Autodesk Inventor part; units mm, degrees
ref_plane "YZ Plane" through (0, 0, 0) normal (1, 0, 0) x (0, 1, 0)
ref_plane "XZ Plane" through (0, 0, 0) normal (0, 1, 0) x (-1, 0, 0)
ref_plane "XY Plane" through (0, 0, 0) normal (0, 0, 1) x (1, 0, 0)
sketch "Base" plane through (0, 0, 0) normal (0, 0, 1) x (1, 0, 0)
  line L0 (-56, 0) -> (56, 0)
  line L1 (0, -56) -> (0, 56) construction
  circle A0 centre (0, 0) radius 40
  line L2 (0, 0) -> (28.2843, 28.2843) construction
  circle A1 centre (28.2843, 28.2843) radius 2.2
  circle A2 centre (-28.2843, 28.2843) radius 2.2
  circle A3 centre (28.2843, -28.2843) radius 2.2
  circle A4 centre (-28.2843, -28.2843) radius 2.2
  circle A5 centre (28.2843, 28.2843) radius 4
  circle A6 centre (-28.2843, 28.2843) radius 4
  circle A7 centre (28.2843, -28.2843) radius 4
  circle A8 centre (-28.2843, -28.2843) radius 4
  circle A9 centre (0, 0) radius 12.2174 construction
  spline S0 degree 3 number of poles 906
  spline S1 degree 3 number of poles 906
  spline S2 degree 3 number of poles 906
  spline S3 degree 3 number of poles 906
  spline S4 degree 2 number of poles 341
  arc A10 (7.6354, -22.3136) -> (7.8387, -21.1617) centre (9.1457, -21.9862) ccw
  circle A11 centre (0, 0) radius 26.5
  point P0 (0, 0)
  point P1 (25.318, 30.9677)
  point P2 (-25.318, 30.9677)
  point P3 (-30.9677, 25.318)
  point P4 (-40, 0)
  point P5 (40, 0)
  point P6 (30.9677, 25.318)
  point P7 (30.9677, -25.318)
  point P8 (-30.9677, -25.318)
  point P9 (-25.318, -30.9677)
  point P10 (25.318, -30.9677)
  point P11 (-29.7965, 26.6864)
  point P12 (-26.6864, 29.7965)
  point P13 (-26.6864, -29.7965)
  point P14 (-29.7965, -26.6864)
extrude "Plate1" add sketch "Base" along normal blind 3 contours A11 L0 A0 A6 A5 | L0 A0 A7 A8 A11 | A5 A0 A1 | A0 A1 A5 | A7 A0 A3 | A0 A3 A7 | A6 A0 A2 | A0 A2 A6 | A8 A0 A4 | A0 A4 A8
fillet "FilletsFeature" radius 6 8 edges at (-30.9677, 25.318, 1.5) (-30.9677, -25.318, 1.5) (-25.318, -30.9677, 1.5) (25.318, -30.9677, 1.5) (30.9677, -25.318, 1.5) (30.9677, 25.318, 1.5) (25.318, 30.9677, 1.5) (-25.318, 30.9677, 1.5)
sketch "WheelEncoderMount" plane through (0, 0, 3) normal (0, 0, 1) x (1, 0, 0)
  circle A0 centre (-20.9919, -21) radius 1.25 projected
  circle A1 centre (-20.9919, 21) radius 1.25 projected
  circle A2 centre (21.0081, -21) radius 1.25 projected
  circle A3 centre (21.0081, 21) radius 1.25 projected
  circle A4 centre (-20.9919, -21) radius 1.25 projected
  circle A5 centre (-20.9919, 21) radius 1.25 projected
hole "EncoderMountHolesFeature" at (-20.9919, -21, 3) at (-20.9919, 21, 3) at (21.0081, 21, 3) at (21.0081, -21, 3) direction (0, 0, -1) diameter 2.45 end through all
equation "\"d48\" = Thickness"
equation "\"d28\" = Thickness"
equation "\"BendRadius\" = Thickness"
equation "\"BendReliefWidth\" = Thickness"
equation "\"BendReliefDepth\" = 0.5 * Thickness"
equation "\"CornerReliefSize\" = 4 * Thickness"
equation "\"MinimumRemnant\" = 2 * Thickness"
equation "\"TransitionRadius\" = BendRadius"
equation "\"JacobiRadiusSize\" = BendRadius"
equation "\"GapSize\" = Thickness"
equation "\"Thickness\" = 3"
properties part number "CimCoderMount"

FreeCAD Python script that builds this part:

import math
import FreeCAD as App
import Part
import Sketcher


def edges_at(feature, points):
    """Names of the edges that pass closest to the given points."""
    edges = feature.Shape.Edges
    near = lambda p: min(range(len(edges)), key=lambda i: edges[i].distToShape(Part.Vertex(*p))[0])
    return sorted({f"Edge{near(p) + 1}" for p in points})

doc = App.newDocument("Part")
params = doc.addObject("Spreadsheet::Sheet", "Params")
for row, (alias, value) in enumerate([
    ("sketch1_diameter", "53 mm"),
    ("sketch1_radius", "40 mm"),
    ("sketch1_radius2", "4 mm"),
    ("sketch1_diameter2", "4.4 mm"),
    ("pad1_length", "3 mm"),
    ("fillet_radius", "6 mm"),
    ("sketch2_diameter", "2.45 mm"),
    ("hole_diameter", "2.45 mm"),
], start=1):
    params.set(f"A{row}", alias)
    params.set(f"B{row}", "=" + value)
    params.setAlias(f"B{row}", alias)

body = doc.addObject("PartDesign::Body", "Body")

sketch1 = doc.addObject("Sketcher::SketchObject", "Sketch")
body.addObject(sketch1)
sketch1.AttachmentSupport = (doc.XY_Plane, [""])
sketch1.MapMode = "FlatFace"
sketch1.addGeometry(Part.ArcOfCircle(Part.Circle(App.Vector(0, 0, 0), App.Vector(0, 0, 1), 40), math.radians(141), math.radians(219)), False)
sketch1.addGeometry(Part.ArcOfCircle(Part.Circle(App.Vector(-28.3, -28.3, 0), App.Vector(0, 0, 1), 4), math.radians(132), math.radians(318)), False)
sketch1.addGeometry(Part.ArcOfCircle(Part.Circle(App.Vector(0, 0, 0), App.Vector(0, 0, 1), 40), math.radians(-129), math.radians(-51)), False)
sketch1.addGeometry(Part.ArcOfCircle(Part.Circle(App.Vector(28.3, -28.3, 0), App.Vector(0, 0, 1), 4), math.radians(-138), math.radians(48)), False)
sketch1.addGeometry(Part.ArcOfCircle(Part.Circle(App.Vector(0, 0, 0), App.Vector(0, 0, 1), 40), math.radians(-39), math.radians(39)), False)
sketch1.addGeometry(Part.ArcOfCircle(Part.Circle(App.Vector(28.3, 28.3, 0), App.Vector(0, 0, 1), 4), math.radians(-48), math.radians(138)), False)
sketch1.addGeometry(Part.ArcOfCircle(Part.Circle(App.Vector(0, 0, 0), App.Vector(0, 0, 1), 40), math.radians(51), math.radians(129)), False)
sketch1.addGeometry(Part.ArcOfCircle(Part.Circle(App.Vector(-28.3, 28.3, 0), App.Vector(0, 0, 1), 4), math.radians(42), math.radians(228)), False)
sketch1.addGeometry(Part.Circle(App.Vector(0, 0, 0), App.Vector(0, 0, 1), 26.5), False)
sketch1.addGeometry(Part.Circle(App.Vector(-28.3, 28.3, 0), App.Vector(0, 0, 1), 2.2), False)
sketch1.addGeometry(Part.Circle(App.Vector(28.3, 28.3, 0), App.Vector(0, 0, 1), 2.2), False)
sketch1.addGeometry(Part.Circle(App.Vector(28.3, -28.3, 0), App.Vector(0, 0, 1), 2.2), False)
sketch1.addGeometry(Part.Circle(App.Vector(-28.3, -28.3, 0), App.Vector(0, 0, 1), 2.2), False)
sketch1.addConstraint(Sketcher.Constraint("Coincident", 0, 2, 1, 1))
sketch1.addConstraint(Sketcher.Constraint("Coincident", 1, 2, 2, 1))
sketch1.addConstraint(Sketcher.Constraint("Coincident", 2, 2, 3, 1))
sketch1.addConstraint(Sketcher.Constraint("Coincident", 3, 2, 4, 1))
sketch1.addConstraint(Sketcher.Constraint("Coincident", 4, 2, 5, 1))
sketch1.addConstraint(Sketcher.Constraint("Coincident", 5, 2, 6, 1))
sketch1.addConstraint(Sketcher.Constraint("Coincident", 6, 2, 7, 1))
sketch1.addConstraint(Sketcher.Constraint("Coincident", 7, 2, 0, 1))
sketch1.addConstraint(Sketcher.Constraint("Coincident", 0, 3, -1, 1))
sketch1.addConstraint(Sketcher.Constraint("Coincident", 2, 3, -1, 1))
sketch1.addConstraint(Sketcher.Constraint("Coincident", 4, 3, -1, 1))
sketch1.addConstraint(Sketcher.Constraint("Coincident", 6, 3, -1, 1))
sketch1.addConstraint(Sketcher.Constraint("Coincident", 8, 3, -1, 1))
sketch1.addConstraint(Sketcher.Constraint("Coincident", 9, 3, 7, 3))
sketch1.addConstraint(Sketcher.Constraint("Coincident", 10, 3, 5, 3))
sketch1.addConstraint(Sketcher.Constraint("Coincident", 11, 3, 3, 3))
sketch1.addConstraint(Sketcher.Constraint("Coincident", 12, 3, 1, 3))
sketch1.addConstraint(Sketcher.Constraint("Equal", 0, 2))
sketch1.addConstraint(Sketcher.Constraint("Equal", 1, 3))
sketch1.addConstraint(Sketcher.Constraint("Equal", 2, 4))
sketch1.addConstraint(Sketcher.Constraint("Equal", 3, 5))
sketch1.addConstraint(Sketcher.Constraint("Equal", 4, 6))
sketch1.addConstraint(Sketcher.Constraint("Equal", 5, 7))
sketch1.addConstraint(Sketcher.Constraint("Equal", 9, 10))
sketch1.addConstraint(Sketcher.Constraint("Equal", 10, 11))
sketch1.addConstraint(Sketcher.Constraint("Equal", 11, 12))
sketch1.addConstraint(Sketcher.Constraint("Symmetric", 1, 3, 5, 3, -1, 1))
sketch1.addConstraint(Sketcher.Constraint("Symmetric", 3, 3, 7, 3, -1, 1))
sketch1.addConstraint(Sketcher.Constraint("Symmetric", 1, 3, 3, 3, -2))
sketch1.addConstraint(Sketcher.Constraint("Diameter", 8, 53.0))
sketch1.addConstraint(Sketcher.Constraint("Radius", 0, 40.0))
sketch1.addConstraint(Sketcher.Constraint("Radius", 1, 4.0))
sketch1.addConstraint(Sketcher.Constraint("Diameter", 9, 4.4))
sketch1.addConstraint(Sketcher.Constraint("DistanceY", 0, 2, -1, 1, 25.318))
sketch1.addConstraint(Sketcher.Constraint("DistanceX", 1, 2, -1, 1, 25.318))
sketch1.setExpression("Constraints[29]", "Params.sketch1_diameter")
sketch1.setExpression("Constraints[30]", "Params.sketch1_radius")
sketch1.setExpression("Constraints[31]", "Params.sketch1_radius2")
sketch1.setExpression("Constraints[32]", "Params.sketch1_diameter2")
pad1 = doc.addObject("PartDesign::Pad", "Pad")
body.addObject(pad1)
pad1.Profile = sketch1
pad1.setExpression("Length", "Params.pad1_length")
doc.recompute()

fillet = doc.addObject("PartDesign::Fillet", "Fillet")
body.addObject(fillet)
fillet.Base = (pad1, edges_at(pad1, [
    (-30.968, 25.318, 1.5),
    (-30.968, -25.318, 1.5),
    (-25.318, -30.968, 1.5),
    (25.318, -30.968, 1.5),
    (30.968, -25.318, 1.5),
    (30.968, 25.318, 1.5),
    (25.318, 30.968, 1.5),
    (-25.318, 30.968, 1.5),
]))
fillet.setExpression("Radius", "Params.fillet_radius")

sketch2 = doc.addObject("Sketcher::SketchObject", "Sketch001")
body.addObject(sketch2)
sketch2.AttachmentSupport = (doc.XY_Plane, [""])
sketch2.MapMode = "FlatFace"
sketch2.AttachmentOffset = App.Placement(App.Vector(0, 0, 3), App.Rotation())
sketch2.addGeometry(Part.Circle(App.Vector(-21, -21, 0), App.Vector(0, 0, 1), 1.2), False)
sketch2.addGeometry(Part.Circle(App.Vector(-21, 21, 0), App.Vector(0, 0, 1), 1.2), False)
sketch2.addGeometry(Part.Circle(App.Vector(21, 21, 0), App.Vector(0, 0, 1), 1.2), False)
sketch2.addGeometry(Part.Circle(App.Vector(21, -21, 0), App.Vector(0, 0, 1), 1.2), False)
sketch2.addConstraint(Sketcher.Constraint("Equal", 0, 1))
sketch2.addConstraint(Sketcher.Constraint("Equal", 1, 2))
sketch2.addConstraint(Sketcher.Constraint("Equal", 2, 3))
sketch2.addConstraint(Sketcher.Constraint("Symmetric", 0, 3, 1, 3, -1))
sketch2.addConstraint(Sketcher.Constraint("Symmetric", 2, 3, 3, 3, -1))
sketch2.addConstraint(Sketcher.Constraint("Horizontal", 1, 3, 2, 3))
sketch2.addConstraint(Sketcher.Constraint("Diameter", 0, 2.45))
sketch2.addConstraint(Sketcher.Constraint("DistanceY", 0, 3, -1, 1, 21.0))
sketch2.addConstraint(Sketcher.Constraint("DistanceX", 1, 3, 2, 3, 42.0))
sketch2.addConstraint(Sketcher.Constraint("DistanceX", 0, 3, -1, 1, 20.992))
sketch2.setExpression("Constraints[6]", "Params.sketch2_diameter")
doc.recompute()
hole = doc.addObject("PartDesign::Hole", "Hole")
body.addObject(hole)
hole.Profile = sketch2
hole.ThreadType = "None"
hole.setExpression("Diameter", "Params.hole_diameter")
hole.DepthType = "ThroughAll"

doc.recompute()
